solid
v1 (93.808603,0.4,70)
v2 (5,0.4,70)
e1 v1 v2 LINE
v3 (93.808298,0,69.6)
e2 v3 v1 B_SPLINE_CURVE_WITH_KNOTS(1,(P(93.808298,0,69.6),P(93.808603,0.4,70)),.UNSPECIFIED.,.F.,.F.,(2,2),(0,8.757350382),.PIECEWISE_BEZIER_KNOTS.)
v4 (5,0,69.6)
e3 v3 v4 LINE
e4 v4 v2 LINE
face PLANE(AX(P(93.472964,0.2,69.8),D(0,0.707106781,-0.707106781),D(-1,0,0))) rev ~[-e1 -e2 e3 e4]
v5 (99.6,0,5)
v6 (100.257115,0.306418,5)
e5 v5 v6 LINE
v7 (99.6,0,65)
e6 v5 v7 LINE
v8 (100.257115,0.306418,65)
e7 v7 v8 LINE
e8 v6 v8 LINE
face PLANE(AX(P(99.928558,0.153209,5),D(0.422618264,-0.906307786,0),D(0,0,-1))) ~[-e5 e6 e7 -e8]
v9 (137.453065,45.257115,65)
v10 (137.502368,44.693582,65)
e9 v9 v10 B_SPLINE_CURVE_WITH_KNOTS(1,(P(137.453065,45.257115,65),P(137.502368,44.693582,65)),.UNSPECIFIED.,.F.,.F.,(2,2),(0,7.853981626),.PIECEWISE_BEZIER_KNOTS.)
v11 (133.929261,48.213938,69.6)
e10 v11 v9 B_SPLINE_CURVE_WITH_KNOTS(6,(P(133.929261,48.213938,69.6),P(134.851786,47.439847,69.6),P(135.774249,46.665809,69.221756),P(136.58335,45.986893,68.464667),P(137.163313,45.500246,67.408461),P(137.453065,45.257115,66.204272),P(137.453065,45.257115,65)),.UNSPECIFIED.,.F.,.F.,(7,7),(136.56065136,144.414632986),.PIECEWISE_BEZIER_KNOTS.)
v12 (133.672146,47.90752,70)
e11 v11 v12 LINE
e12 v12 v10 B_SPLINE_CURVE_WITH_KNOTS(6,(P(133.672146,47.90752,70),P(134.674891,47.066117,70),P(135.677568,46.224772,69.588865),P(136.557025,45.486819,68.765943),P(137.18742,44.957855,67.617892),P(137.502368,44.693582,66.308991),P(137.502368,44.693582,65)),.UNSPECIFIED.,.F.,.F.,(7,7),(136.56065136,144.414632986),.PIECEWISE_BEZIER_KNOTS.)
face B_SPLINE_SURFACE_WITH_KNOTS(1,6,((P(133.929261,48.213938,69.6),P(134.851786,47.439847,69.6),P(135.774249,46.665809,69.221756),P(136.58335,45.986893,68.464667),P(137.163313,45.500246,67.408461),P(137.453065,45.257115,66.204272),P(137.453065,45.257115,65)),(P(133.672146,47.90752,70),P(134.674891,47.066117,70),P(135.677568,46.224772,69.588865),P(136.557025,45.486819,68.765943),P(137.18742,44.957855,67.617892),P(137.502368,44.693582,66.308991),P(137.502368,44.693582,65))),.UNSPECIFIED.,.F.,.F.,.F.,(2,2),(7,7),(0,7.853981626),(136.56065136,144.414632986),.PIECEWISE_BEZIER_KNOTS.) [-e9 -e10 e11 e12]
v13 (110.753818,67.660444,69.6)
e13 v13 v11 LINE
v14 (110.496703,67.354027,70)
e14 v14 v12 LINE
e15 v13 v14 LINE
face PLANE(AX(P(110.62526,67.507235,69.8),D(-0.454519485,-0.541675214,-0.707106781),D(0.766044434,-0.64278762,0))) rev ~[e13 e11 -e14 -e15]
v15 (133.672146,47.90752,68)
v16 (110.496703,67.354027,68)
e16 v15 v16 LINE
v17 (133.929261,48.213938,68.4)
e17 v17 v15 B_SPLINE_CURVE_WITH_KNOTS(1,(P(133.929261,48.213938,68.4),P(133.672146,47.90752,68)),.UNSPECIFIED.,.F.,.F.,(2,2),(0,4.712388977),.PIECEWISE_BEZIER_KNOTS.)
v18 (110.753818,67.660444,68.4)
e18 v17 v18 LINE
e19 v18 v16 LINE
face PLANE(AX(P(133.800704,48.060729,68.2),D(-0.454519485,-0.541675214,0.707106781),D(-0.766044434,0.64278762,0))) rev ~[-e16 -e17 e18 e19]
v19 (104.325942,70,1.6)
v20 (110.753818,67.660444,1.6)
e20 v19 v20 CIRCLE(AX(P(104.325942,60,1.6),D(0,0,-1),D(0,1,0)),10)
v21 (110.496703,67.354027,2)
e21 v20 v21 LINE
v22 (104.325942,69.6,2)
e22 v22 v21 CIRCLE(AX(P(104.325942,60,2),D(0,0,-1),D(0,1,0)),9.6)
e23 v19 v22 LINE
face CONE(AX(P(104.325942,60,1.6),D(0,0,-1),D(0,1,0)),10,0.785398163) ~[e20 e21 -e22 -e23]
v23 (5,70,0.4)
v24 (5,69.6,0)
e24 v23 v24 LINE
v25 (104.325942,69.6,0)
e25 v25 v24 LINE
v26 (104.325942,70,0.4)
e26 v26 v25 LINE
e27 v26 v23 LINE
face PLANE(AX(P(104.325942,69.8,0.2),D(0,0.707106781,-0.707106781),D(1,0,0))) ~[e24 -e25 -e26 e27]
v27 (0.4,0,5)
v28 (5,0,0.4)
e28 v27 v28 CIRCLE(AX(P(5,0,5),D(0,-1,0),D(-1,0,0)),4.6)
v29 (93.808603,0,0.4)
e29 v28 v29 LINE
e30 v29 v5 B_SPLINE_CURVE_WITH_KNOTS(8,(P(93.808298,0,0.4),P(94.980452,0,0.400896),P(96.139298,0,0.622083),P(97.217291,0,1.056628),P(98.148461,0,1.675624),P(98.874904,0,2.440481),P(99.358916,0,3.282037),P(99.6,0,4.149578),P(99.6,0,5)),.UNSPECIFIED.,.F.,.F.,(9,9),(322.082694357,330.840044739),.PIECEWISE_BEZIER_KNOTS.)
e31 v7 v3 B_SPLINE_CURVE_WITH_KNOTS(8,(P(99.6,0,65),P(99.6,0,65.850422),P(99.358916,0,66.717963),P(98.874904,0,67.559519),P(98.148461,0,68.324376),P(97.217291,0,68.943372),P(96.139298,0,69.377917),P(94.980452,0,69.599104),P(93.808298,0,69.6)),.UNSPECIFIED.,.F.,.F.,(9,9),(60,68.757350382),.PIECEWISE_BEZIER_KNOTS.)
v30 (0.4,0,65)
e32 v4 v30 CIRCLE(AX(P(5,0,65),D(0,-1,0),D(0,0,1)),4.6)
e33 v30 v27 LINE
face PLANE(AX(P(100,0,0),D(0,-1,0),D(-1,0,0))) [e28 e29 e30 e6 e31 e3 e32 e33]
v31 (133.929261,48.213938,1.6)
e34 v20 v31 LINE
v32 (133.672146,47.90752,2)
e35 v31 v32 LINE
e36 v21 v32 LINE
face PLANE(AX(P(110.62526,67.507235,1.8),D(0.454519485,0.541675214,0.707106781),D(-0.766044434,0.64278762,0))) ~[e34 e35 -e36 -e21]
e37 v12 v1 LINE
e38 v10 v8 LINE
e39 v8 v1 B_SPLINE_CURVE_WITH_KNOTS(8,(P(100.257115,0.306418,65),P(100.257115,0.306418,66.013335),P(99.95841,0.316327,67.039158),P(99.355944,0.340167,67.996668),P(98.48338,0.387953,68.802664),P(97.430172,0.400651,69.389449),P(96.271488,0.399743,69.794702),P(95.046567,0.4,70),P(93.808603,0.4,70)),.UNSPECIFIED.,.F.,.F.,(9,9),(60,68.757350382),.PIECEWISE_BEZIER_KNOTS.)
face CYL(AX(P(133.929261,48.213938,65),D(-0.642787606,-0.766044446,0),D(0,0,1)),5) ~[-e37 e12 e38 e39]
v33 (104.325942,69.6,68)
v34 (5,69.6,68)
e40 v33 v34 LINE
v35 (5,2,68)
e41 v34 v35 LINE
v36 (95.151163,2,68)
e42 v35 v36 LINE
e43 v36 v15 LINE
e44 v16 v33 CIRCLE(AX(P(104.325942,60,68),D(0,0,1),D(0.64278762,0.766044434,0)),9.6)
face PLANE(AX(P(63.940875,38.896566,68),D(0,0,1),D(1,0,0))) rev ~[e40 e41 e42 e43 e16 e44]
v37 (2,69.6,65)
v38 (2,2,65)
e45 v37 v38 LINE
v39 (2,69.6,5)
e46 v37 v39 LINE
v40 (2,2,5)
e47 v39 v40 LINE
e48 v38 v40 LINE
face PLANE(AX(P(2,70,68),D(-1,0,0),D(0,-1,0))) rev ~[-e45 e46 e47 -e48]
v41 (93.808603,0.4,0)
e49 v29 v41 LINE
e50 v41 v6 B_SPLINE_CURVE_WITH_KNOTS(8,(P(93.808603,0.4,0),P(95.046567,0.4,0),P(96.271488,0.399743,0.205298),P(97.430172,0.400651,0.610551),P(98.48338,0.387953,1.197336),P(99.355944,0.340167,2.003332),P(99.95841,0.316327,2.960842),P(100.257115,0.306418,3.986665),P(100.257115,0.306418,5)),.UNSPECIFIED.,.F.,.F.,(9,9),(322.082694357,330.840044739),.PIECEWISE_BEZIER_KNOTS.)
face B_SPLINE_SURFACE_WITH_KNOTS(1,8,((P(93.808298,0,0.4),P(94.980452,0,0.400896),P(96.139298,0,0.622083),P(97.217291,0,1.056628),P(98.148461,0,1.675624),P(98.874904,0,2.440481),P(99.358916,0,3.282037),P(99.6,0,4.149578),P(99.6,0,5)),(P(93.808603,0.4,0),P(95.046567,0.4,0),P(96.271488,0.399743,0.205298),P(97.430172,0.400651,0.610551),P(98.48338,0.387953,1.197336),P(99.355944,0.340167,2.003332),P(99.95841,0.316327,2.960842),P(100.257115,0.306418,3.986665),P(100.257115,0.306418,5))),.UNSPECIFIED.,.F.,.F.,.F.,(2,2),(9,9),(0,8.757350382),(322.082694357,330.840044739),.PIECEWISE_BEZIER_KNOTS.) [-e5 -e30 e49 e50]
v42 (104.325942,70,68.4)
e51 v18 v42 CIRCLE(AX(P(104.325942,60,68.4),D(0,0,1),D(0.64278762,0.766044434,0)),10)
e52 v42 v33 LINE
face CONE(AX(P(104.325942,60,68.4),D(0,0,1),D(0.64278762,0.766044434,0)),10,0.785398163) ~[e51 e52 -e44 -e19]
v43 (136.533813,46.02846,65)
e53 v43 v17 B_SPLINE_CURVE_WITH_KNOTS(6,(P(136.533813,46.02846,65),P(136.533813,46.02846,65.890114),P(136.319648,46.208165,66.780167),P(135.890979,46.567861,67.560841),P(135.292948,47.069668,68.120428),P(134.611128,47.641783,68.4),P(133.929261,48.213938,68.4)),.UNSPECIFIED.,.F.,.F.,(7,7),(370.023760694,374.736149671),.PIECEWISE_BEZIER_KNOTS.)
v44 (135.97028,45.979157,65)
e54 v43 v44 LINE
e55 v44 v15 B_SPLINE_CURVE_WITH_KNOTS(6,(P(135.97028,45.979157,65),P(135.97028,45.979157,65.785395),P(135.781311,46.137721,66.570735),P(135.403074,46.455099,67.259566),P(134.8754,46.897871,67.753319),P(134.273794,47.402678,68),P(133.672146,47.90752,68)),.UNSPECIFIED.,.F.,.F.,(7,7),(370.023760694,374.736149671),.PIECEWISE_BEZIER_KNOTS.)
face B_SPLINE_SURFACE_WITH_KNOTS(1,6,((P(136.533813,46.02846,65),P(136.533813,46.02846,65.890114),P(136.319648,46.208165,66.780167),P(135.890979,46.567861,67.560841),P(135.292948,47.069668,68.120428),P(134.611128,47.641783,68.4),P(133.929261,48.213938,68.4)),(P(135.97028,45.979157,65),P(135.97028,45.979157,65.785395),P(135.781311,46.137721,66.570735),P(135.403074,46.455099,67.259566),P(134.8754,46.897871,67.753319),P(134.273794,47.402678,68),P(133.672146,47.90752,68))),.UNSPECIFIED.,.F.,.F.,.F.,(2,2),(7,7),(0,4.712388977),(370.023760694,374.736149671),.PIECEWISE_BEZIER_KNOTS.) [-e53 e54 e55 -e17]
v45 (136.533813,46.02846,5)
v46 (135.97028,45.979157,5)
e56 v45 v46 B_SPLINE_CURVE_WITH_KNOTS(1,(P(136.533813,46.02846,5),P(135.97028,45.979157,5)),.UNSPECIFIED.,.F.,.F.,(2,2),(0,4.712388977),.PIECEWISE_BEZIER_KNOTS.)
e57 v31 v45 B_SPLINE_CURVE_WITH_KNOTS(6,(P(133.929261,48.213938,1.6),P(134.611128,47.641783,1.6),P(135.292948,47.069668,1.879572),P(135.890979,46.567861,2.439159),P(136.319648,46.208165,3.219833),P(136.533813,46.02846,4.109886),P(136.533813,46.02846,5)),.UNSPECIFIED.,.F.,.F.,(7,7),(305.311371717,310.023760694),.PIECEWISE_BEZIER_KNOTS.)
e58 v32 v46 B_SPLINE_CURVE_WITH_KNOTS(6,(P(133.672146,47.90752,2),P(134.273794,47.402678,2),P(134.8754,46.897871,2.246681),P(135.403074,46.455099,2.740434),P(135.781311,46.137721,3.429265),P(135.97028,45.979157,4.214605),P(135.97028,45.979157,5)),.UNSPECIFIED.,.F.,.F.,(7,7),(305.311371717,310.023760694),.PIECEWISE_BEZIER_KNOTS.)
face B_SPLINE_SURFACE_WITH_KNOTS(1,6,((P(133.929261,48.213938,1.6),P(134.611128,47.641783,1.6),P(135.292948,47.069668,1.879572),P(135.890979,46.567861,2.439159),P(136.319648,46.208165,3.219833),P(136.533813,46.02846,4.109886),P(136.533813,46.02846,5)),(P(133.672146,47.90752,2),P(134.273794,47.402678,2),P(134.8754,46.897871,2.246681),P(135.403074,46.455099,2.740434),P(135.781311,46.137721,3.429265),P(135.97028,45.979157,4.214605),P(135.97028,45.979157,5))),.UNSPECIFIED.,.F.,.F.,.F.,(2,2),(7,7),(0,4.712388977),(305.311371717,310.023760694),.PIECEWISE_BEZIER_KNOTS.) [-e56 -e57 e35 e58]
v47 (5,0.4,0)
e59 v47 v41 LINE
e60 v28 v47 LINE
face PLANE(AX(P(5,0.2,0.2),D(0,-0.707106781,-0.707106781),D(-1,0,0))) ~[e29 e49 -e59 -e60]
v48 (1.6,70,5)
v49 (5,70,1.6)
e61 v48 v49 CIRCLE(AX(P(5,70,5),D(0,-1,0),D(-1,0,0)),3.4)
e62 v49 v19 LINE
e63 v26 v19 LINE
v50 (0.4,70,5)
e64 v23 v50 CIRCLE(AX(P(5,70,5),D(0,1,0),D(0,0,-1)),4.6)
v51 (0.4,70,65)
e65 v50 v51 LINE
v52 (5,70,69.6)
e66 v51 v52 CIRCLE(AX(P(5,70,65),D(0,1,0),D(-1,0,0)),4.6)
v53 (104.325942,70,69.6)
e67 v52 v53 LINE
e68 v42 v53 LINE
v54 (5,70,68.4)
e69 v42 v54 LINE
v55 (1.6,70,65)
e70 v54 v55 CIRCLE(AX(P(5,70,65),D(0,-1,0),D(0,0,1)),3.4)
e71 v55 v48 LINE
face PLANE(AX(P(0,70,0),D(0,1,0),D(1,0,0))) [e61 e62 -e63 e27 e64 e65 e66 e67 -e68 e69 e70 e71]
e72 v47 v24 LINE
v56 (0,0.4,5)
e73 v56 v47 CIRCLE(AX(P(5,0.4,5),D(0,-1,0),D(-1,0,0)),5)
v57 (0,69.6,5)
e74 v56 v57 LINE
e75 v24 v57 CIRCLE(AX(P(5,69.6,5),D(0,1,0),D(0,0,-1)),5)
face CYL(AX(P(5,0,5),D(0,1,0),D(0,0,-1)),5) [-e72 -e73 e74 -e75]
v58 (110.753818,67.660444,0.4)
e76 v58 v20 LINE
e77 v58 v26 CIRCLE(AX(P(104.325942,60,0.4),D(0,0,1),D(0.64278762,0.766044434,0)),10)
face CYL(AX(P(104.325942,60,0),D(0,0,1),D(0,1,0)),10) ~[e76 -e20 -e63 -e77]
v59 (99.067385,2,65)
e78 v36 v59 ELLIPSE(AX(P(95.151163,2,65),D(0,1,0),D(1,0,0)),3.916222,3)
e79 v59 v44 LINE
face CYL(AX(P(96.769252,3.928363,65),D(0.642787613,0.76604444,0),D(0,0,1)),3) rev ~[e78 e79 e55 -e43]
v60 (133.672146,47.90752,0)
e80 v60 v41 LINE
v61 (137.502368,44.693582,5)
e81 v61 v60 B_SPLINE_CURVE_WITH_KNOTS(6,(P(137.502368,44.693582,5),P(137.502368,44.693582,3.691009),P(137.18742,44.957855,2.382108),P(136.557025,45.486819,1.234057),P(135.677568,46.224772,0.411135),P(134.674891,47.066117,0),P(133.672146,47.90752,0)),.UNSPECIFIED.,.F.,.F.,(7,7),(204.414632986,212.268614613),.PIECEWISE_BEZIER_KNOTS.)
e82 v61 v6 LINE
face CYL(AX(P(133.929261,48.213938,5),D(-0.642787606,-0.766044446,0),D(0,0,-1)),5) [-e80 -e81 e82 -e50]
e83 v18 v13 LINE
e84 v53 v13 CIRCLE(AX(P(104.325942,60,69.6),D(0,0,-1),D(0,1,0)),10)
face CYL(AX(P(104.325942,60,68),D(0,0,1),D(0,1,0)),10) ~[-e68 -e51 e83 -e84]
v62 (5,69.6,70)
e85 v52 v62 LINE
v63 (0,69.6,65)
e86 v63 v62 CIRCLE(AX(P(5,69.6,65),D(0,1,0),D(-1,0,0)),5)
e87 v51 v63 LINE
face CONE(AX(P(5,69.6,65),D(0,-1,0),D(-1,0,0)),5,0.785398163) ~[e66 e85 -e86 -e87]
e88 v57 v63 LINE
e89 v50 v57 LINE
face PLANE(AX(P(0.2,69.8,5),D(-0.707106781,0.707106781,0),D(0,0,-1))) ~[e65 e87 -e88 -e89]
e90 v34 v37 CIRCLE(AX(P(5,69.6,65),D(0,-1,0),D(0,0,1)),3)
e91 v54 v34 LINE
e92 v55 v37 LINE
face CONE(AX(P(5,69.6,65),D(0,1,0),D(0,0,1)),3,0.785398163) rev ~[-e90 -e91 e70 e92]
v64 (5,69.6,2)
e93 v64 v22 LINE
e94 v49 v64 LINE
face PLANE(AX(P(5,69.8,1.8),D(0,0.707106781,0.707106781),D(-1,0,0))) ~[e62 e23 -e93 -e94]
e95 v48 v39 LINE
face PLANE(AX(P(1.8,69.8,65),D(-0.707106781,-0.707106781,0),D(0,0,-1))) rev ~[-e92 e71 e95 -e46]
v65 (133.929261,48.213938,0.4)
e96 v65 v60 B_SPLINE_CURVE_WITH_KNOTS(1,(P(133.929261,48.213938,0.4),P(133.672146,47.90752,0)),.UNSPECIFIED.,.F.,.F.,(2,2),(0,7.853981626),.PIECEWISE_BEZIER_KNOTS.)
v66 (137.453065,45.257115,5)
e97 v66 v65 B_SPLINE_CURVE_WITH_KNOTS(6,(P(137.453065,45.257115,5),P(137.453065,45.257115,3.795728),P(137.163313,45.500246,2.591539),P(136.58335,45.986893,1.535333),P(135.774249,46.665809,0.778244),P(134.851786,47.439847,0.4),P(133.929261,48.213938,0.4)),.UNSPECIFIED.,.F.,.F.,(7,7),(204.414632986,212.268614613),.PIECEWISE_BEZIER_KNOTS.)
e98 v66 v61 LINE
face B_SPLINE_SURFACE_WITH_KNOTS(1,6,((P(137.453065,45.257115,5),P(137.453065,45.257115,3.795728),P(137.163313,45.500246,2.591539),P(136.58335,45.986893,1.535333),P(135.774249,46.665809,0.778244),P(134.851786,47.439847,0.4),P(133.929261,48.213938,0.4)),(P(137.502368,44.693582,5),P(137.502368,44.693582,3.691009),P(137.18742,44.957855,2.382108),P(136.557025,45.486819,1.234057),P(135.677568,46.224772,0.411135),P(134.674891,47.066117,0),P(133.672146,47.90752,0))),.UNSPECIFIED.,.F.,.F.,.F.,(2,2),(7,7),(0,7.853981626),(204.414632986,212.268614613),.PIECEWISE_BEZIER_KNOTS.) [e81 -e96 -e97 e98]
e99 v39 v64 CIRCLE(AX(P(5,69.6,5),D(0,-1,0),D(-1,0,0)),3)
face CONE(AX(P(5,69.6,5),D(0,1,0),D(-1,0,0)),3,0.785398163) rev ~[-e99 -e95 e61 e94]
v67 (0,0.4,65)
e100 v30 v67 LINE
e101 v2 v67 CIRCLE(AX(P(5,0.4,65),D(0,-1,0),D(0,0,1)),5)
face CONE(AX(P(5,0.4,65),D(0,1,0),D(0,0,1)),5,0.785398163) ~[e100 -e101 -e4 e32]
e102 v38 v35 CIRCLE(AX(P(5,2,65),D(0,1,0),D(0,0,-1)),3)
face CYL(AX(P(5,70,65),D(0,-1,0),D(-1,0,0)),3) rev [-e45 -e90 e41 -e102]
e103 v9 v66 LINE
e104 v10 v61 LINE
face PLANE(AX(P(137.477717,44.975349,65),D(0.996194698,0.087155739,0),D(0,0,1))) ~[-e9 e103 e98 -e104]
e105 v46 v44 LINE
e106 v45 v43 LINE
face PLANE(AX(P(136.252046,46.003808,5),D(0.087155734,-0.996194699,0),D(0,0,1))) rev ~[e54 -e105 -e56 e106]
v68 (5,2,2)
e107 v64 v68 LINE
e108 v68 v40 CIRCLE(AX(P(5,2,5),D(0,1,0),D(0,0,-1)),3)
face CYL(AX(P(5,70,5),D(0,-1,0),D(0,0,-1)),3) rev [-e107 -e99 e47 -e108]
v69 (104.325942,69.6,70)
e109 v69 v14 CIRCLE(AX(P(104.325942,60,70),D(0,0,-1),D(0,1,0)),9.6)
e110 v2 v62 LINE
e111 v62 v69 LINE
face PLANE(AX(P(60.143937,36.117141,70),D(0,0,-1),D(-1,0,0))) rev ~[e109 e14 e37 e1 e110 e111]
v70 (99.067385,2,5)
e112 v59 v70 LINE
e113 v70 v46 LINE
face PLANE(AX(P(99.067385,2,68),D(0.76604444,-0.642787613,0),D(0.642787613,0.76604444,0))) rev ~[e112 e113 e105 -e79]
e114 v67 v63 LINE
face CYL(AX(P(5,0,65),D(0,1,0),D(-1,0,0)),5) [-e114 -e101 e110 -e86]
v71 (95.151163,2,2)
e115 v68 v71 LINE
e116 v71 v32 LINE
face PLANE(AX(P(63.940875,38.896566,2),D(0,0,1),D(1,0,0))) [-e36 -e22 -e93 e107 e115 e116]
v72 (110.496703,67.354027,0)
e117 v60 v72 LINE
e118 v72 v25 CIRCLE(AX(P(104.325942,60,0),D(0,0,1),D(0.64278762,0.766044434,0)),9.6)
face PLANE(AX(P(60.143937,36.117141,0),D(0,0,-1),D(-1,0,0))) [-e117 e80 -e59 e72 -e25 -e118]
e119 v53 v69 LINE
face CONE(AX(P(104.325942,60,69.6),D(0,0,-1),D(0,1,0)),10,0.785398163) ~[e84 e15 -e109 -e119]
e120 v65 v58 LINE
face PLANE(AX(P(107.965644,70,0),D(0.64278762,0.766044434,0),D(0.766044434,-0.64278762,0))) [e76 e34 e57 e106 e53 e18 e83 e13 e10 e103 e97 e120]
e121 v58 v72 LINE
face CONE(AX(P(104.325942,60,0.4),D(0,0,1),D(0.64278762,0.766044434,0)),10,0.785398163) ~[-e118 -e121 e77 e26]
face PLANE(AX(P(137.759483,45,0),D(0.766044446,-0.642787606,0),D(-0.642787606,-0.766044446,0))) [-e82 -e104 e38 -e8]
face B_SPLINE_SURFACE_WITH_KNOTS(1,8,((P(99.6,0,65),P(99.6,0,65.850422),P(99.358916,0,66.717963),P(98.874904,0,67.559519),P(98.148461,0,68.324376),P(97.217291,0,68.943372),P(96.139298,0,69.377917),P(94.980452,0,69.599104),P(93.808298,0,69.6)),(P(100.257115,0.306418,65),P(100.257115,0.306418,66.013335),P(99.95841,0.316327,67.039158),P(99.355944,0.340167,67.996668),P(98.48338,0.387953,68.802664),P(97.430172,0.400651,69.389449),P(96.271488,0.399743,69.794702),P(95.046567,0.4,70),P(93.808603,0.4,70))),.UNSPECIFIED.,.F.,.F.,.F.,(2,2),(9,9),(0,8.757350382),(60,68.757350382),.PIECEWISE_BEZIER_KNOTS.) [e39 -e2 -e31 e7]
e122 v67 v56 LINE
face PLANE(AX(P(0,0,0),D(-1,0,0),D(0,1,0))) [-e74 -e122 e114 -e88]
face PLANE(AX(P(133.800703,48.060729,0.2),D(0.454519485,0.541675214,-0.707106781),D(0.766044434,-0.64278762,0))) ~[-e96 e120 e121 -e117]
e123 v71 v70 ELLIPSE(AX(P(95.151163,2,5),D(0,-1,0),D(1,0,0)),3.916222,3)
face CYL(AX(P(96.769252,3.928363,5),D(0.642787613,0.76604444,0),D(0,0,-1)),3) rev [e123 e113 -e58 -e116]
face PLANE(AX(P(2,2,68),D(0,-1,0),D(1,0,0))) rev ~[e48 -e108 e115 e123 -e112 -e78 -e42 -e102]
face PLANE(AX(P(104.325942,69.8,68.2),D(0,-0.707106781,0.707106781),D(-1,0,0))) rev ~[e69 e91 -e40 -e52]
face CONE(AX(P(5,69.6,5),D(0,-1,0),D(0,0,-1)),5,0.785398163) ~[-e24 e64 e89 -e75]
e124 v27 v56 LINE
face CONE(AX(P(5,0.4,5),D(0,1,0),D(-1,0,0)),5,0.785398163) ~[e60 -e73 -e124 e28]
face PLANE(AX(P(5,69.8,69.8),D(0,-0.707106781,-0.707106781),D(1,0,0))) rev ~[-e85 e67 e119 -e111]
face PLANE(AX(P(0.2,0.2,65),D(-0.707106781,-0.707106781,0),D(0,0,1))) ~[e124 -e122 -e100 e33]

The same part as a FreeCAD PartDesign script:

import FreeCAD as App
import Part
import Sketcher

V = App.Vector
Q = App.Units.Quantity


def edges_at(feature, points):
    """Names of the edges that pass closest to the given points."""
    edges = feature.Shape.Edges
    near = lambda p: min(range(len(edges)), key=lambda i: edges[i].distToShape(Part.Vertex(*p))[0])
    return sorted({f"Edge{near(p) + 1}" for p in points})

doc = App.newDocument("Part")
body = doc.addObject("PartDesign::Body", "Body")

# Sketch on XY plane
sketch1 = doc.addObject("Sketcher::SketchObject", "Sketch")
body.addObject(sketch1)
sketch1.AttachmentSupport = (doc.XY_Plane, [""])
sketch1.MapMode = "FlatFace"
sketch1.addGeometry([
    Part.LineSegment(V(0, 70, 0), V(0, 0, 0)),  # 0
    Part.LineSegment(V(0, 0, 0), V(100, 0, 0)),  # 1
    Part.LineSegment(V(100, 0, 0), V(138, 45, 0)),  # 2
    Part.LineSegment(V(138, 45, 0), V(108, 70, 0)),  # 3
    Part.LineSegment(V(108, 70, 0), V(0, 70, 0)),  # 4
], False)
sketch1.addConstraint([
    Sketcher.Constraint("Coincident", 0, 2, 1, 1),
    Sketcher.Constraint("Coincident", 1, 2, 2, 1),
    Sketcher.Constraint("Coincident", 2, 2, 3, 1),
    Sketcher.Constraint("Coincident", 3, 2, 4, 1),
    Sketcher.Constraint("Coincident", 4, 2, 0, 1),
    Sketcher.Constraint("Vertical", 0),
    Sketcher.Constraint("Horizontal", 1),
    Sketcher.Constraint("Horizontal", 4),
    Sketcher.Constraint("Coincident", 0, 2, -1, 1),
    Sketcher.Constraint("Perpendicular", 2, 3),
    Sketcher.Constraint("DistanceX", 1, 1, 1, 2, Q("100 mm")),
    Sketcher.Constraint("DistanceY", 0, 2, 0, 1, Q("70 mm")),
    Sketcher.Constraint("Angle", 2, Q("50 deg")),
    Sketcher.Constraint("DistanceY", -1, 1, 2, 2, Q("45 mm")),
])
pad1 = doc.addObject("PartDesign::Pad", "Pad")
body.addObject(pad1)
pad1.Profile = sketch1
pad1.Length = 70

# Sketch on XY plane
sketch2 = doc.addObject("Sketcher::SketchObject", "Sketch001")
body.addObject(sketch2)
sketch2.AttachmentSupport = (doc.XY_Plane, [""])
sketch2.MapMode = "FlatFace"
sketch2.AttachmentOffset = App.Placement(V(0, 0, 68), App.Rotation())
sketch2.addGeometry([
    Part.LineSegment(V(2, 70, 0), V(2, 2, 0)),  # 0
    Part.LineSegment(V(2, 2, 0), V(99, 2, 0)),  # 1
    Part.LineSegment(V(99, 2, 0), V(136, 46, 0)),  # 2
    Part.LineSegment(V(136, 46, 0), V(136, 70, 0)),  # 3
    Part.LineSegment(V(136, 70, 0), V(2, 70, 0)),  # 4
], False)
sketch2.addConstraint([
    Sketcher.Constraint("Coincident", 0, 2, 1, 1),
    Sketcher.Constraint("Coincident", 1, 2, 2, 1),
    Sketcher.Constraint("Coincident", 2, 2, 3, 1),
    Sketcher.Constraint("Coincident", 3, 2, 4, 1),
    Sketcher.Constraint("Coincident", 4, 2, 0, 1),
    Sketcher.Constraint("Vertical", 0),
    Sketcher.Constraint("Horizontal", 1),
    Sketcher.Constraint("Vertical", 3),
    Sketcher.Constraint("Horizontal", 4),
    Sketcher.Constraint("DistanceY", 0, 2, 0, 1, Q("68 mm")),
    Sketcher.Constraint("Angle", 2, Q("50 deg")),
    Sketcher.Constraint("DistanceX", -1, 1, 0, 2, Q("2 mm")),
    Sketcher.Constraint("DistanceY", -1, 1, 0, 2, Q("2 mm")),
    Sketcher.Constraint("DistanceX", 1, 1, 1, 2, Q("97.067385 mm")),
    Sketcher.Constraint("DistanceX", 4, 2, 4, 1, Q("134.227395 mm")),
])
pocket1 = doc.addObject("PartDesign::Pocket", "Pocket")
body.addObject(pocket1)
pocket1.Profile = sketch2
pocket1.Length = 66
doc.recompute()

fillet = doc.addObject("PartDesign::Fillet", "Fillet")
body.addObject(fillet)
fillet.Base = (pocket1, edges_at(pocket1, [
    (2, 36, 2),
    (117.647, 24.143, 68),
    (117.647, 24.143, 2),
    (2, 36, 68),
]))
fillet.Radius = 3
doc.recompute()

fillet2 = doc.addObject("PartDesign::Fillet", "Fillet001")
body.addObject(fillet2)
fillet2.Base = (fillet, edges_at(fillet, [
    (0, 35, 70),
    (118.88, 22.5, 70),
    (118.88, 22.5, 0),
    (0, 35, 0),
]))
fillet2.Radius = 5
doc.recompute()

fillet3 = doc.addObject("PartDesign::Fillet", "Fillet002")
body.addObject(fillet3)
fillet3.Base = (fillet2, edges_at(fillet2, [(107.966, 70, 69), (107.966, 70, 1)]))
fillet3.Radius = 10
doc.recompute()

chamfer = doc.addObject("PartDesign::Chamfer", "Chamfer")
body.addObject(chamfer)
chamfer.Base = (fillet3, edges_at(fillet3, [
    (100, 0, 35),
    (97.779, 0, 1.243),
    (97.779, 0, 68.757),
    (49.236, 0, 0),
    (49.236, 0, 70),
    (1.464, 0, 1.464),
    (1.464, 0, 68.536),
    (0, 0, 35),
    (54.663, 70, 70),
    (54.663, 70, 68),
]))
chamfer.Size = 0.4

doc.recompute()
